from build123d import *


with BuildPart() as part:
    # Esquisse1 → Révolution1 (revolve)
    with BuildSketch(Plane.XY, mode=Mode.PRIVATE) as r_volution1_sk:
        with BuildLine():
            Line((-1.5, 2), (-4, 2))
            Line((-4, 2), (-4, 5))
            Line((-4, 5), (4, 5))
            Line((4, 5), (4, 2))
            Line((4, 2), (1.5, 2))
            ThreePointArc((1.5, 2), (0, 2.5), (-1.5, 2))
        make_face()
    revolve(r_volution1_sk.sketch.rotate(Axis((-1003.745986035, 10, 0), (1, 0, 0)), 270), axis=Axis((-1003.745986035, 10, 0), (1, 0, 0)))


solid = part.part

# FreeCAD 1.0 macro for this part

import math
import FreeCAD as App
import Part
import Sketcher
from FreeCAD import Vector

doc = App.newDocument("Part")
body = doc.addObject("PartDesign::Body", "Body")

# Sketch on XY plane
sketch1 = body.newObject("Sketcher::SketchObject", "Sketch")
sketch1.AttachmentSupport = (doc.getObject("XY_Plane"), [""])
sketch1.MapMode = "FlatFace"
sketch1.addGeometry([
    Part.LineSegment(Vector(-4, 2, 0), Vector(-1.5, 2, 0)),  # 0
    Part.ArcOfCircle(Part.Circle(Vector(0, 0, 0), Vector(0, 0, 1), 2.5), math.radians(53.130102), math.radians(126.869898)),  # 1
    Part.LineSegment(Vector(1.5, 2, 0), Vector(4, 2, 0)),  # 2
    Part.LineSegment(Vector(4, 2, 0), Vector(4, 5, 0)),  # 3
    Part.LineSegment(Vector(4, 5, 0), Vector(-4, 5, 0)),  # 4
    Part.LineSegment(Vector(-4, 5, 0), Vector(-4, 2, 0)),  # 5
], False)
sketch1.addGeometry(Part.LineSegment(Vector(-4, 10, 0), Vector(4, 10, 0)), True)  # axis
sketch1.addConstraint([
    Sketcher.Constraint("Coincident", 0, 2, 1, 2),
    Sketcher.Constraint("Coincident", 1, 1, 2, 1),
    Sketcher.Constraint("Coincident", 2, 2, 3, 1),
    Sketcher.Constraint("Coincident", 3, 2, 4, 1),
    Sketcher.Constraint("Coincident", 4, 2, 5, 1),
    Sketcher.Constraint("Coincident", 5, 2, 0, 1),
    Sketcher.Constraint("Horizontal", 0),
    Sketcher.Constraint("Horizontal", 2),
    Sketcher.Constraint("Vertical", 3),
    Sketcher.Constraint("Horizontal", 4),
    Sketcher.Constraint("Vertical", 5),
    Sketcher.Constraint("Horizontal", 6),
    Sketcher.Constraint("Coincident", 1, 3, -1, 1),
    Sketcher.Constraint("Symmetric", 2, 2, 5, 2, -2),
    Sketcher.Constraint("Vertical", 5, 2, 6, 1),
    Sketcher.Constraint("Vertical", 3, 2, 6, 2),
    Sketcher.Constraint("Radius", 1, 2.5),
    Sketcher.Constraint("DistanceX", 4, 2, 4, 1, 8.0),
    Sketcher.Constraint("DistanceY", 3, 1, 3, 2, 3.0),
    Sketcher.Constraint("DistanceX", 0, 1, 0, 2, 2.5),
    Sketcher.Constraint("DistanceY", -1, 1, 6, 1, 10.0),
])
revolution = body.newObject("PartDesign::Revolution", "Revolution")
revolution.Profile = sketch1
revolution.ReferenceAxis = (sketch1, ["Axis0"])
revolution.Angle = 360

doc.recompute()
